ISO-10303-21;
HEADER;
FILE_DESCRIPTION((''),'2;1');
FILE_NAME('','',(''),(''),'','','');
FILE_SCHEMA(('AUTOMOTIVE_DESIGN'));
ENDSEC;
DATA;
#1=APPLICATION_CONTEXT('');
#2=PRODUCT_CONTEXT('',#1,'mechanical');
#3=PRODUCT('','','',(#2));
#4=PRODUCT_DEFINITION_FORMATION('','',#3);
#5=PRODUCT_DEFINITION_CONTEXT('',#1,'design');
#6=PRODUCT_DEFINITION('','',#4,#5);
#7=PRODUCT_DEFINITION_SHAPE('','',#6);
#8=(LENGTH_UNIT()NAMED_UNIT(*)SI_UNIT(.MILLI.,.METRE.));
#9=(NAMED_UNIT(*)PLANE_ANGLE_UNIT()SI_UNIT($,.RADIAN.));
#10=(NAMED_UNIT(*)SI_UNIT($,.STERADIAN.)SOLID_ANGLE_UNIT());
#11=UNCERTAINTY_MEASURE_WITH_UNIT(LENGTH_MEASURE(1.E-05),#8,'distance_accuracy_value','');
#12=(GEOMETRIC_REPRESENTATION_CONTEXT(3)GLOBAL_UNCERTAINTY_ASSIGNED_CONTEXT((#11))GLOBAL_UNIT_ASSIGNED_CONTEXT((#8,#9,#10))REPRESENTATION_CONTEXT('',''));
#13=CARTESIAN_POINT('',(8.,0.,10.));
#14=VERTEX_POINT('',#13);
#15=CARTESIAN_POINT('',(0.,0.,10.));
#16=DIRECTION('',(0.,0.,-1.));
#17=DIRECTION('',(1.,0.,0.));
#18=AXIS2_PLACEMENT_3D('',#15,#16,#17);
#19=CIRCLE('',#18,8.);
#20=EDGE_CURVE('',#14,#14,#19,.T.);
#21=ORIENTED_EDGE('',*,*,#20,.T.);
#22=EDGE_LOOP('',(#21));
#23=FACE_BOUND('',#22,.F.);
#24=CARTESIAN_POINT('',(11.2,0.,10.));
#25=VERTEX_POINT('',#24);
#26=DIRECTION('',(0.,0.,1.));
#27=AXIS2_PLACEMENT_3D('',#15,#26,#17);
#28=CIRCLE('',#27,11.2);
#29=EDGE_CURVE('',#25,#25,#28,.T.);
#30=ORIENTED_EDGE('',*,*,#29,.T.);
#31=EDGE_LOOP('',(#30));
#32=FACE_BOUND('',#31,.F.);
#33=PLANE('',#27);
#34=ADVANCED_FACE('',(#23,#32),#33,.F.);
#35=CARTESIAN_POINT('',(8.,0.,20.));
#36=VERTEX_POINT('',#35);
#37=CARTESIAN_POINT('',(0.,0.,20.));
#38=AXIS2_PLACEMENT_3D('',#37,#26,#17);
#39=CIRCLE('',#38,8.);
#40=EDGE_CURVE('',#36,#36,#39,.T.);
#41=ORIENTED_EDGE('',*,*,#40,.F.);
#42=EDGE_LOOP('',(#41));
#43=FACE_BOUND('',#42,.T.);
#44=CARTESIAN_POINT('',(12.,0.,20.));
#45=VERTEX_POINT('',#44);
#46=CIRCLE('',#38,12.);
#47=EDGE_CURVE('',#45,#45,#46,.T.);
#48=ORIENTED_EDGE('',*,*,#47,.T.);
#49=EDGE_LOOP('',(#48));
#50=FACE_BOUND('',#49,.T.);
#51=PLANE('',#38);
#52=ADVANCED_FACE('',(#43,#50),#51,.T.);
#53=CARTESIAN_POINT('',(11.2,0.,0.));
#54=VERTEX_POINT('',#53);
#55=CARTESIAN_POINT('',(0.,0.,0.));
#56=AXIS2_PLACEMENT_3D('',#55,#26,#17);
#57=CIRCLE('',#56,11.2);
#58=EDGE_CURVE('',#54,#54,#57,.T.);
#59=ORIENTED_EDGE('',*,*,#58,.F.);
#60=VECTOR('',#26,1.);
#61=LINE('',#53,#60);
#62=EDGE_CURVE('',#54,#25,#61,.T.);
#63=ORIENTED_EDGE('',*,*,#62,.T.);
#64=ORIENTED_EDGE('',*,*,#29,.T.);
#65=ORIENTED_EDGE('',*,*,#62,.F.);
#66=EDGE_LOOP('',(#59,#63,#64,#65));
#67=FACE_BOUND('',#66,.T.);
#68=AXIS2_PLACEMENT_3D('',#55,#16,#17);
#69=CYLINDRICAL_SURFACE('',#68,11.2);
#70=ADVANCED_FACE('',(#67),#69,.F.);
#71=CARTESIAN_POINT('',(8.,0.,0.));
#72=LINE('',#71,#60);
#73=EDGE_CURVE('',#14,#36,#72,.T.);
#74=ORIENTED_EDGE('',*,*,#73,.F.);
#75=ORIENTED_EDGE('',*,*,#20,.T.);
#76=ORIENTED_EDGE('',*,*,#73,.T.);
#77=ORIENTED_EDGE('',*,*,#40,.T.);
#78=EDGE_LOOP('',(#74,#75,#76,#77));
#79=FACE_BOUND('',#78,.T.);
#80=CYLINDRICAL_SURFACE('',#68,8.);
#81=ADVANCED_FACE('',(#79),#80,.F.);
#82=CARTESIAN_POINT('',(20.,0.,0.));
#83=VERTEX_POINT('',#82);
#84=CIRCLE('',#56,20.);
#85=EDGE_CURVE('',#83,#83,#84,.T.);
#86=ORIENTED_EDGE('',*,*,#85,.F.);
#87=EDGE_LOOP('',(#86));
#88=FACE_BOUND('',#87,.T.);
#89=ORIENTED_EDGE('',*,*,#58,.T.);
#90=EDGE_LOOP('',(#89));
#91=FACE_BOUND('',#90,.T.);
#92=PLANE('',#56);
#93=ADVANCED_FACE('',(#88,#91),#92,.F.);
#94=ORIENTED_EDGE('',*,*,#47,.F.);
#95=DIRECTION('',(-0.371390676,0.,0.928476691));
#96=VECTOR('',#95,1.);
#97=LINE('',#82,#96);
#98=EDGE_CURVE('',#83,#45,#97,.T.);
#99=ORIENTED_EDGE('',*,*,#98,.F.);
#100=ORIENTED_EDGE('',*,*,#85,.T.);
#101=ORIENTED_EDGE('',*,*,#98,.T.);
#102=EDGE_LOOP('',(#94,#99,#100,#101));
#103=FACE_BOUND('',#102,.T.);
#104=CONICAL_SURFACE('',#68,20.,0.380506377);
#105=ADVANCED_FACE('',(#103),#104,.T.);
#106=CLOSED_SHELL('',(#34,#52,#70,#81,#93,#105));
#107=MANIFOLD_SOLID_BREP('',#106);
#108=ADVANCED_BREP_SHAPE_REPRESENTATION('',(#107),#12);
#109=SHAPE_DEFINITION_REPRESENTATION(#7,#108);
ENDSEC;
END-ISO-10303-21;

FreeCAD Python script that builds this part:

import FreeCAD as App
import Part
import Sketcher
Q = App.Units.Quantity


def add_polygon(sketch, points):
    """Adds a closed chain of lines whose ends are joined by coincident constraints."""
    first, n = sketch.GeometryCount, len(points)
    for a, b in zip(points, points[1:] + points[:1]):
        sketch.addGeometry(Part.LineSegment(App.Vector(*a, 0), App.Vector(*b, 0)), False)
    for i in range(n):
        sketch.addConstraint(Sketcher.Constraint("Coincident", first + i, 2, first + (i + 1) % n, 1))

doc = App.newDocument("Part")
body = doc.addObject("PartDesign::Body", "Body")

# Sketch on XY plane
sketch1 = doc.addObject("Sketcher::SketchObject", "Sketch")
body.addObject(sketch1)
sketch1.AttachmentSupport = (doc.XY_Plane, [""])
sketch1.MapMode = "FlatFace"
sketch1.addGeometry(Part.Circle(App.Vector(0, 0, 0), App.Vector(0, 0, 1), 8), False)
sketch1.addConstraint([
    Sketcher.Constraint("Coincident", 0, 3, -1, 1),
    Sketcher.Constraint("Diameter", 0, Q("16 mm")),
])
pad1 = doc.addObject("PartDesign::Pad", "Pad")
body.addObject(pad1)
pad1.Profile = sketch1
pad1.Length = 20
body2 = doc.addObject("PartDesign::Body", "Body001")

# Sketch on XY plane
sketch2 = doc.addObject("Sketcher::SketchObject", "Sketch001")
body2.addObject(sketch2)
sketch2.AttachmentSupport = (doc.getObject("XY_Plane001"), [""])
sketch2.MapMode = "FlatFace"
sketch2.addGeometry(Part.Circle(App.Vector(0, 0, 0), App.Vector(0, 0, 1), 11.2), False)
sketch2.addConstraint([
    Sketcher.Constraint("Coincident", 0, 3, -1, 1),
    Sketcher.Constraint("Diameter", 0, Q("22.4 mm")),
])
pad2 = doc.addObject("PartDesign::Pad", "Pad001")
body2.addObject(pad2)
pad2.Profile = sketch2
pad2.Length = 10
body3 = doc.addObject("PartDesign::Body", "Body002")

# Sketch on XZ plane
sketch3 = doc.addObject("Sketcher::SketchObject", "Sketch002")
body3.addObject(sketch3)
sketch3.AttachmentSupport = (doc.getObject("XZ_Plane002"), [""])
sketch3.MapMode = "FlatFace"
add_polygon(sketch3, [(0, 0), (20, 0), (12, 20), (0, 20)])  # lines 0-3
sketch3.addConstraint([
    Sketcher.Constraint("Horizontal", 0),
    Sketcher.Constraint("Horizontal", 2),
    Sketcher.Constraint("Vertical", 3),
    Sketcher.Constraint("Coincident", 3, 2, -1, 1),
    Sketcher.Constraint("Equal", 0, 3),
    Sketcher.Constraint("DistanceX", 0, 1, 0, 2, Q("20 mm")),
    Sketcher.Constraint("DistanceX", 2, 2, 2, 1, Q("12 mm")),
])
revolution = doc.addObject("PartDesign::Revolution", "Revolution")
body3.addObject(revolution)
revolution.Profile = sketch3
revolution.ReferenceAxis = (sketch3, ["V_Axis"])
revolution.Angle = 360
doc.recompute()

boolean = doc.addObject("PartDesign::Boolean", "Boolean")
body3.addObject(boolean)
boolean.Type = "Cut"
boolean.addObjects([body2])
doc.recompute()

boolean2 = doc.addObject("PartDesign::Boolean", "Boolean001")
body3.addObject(boolean2)
boolean2.Type = "Cut"
boolean2.addObjects([body])

doc.recompute()
